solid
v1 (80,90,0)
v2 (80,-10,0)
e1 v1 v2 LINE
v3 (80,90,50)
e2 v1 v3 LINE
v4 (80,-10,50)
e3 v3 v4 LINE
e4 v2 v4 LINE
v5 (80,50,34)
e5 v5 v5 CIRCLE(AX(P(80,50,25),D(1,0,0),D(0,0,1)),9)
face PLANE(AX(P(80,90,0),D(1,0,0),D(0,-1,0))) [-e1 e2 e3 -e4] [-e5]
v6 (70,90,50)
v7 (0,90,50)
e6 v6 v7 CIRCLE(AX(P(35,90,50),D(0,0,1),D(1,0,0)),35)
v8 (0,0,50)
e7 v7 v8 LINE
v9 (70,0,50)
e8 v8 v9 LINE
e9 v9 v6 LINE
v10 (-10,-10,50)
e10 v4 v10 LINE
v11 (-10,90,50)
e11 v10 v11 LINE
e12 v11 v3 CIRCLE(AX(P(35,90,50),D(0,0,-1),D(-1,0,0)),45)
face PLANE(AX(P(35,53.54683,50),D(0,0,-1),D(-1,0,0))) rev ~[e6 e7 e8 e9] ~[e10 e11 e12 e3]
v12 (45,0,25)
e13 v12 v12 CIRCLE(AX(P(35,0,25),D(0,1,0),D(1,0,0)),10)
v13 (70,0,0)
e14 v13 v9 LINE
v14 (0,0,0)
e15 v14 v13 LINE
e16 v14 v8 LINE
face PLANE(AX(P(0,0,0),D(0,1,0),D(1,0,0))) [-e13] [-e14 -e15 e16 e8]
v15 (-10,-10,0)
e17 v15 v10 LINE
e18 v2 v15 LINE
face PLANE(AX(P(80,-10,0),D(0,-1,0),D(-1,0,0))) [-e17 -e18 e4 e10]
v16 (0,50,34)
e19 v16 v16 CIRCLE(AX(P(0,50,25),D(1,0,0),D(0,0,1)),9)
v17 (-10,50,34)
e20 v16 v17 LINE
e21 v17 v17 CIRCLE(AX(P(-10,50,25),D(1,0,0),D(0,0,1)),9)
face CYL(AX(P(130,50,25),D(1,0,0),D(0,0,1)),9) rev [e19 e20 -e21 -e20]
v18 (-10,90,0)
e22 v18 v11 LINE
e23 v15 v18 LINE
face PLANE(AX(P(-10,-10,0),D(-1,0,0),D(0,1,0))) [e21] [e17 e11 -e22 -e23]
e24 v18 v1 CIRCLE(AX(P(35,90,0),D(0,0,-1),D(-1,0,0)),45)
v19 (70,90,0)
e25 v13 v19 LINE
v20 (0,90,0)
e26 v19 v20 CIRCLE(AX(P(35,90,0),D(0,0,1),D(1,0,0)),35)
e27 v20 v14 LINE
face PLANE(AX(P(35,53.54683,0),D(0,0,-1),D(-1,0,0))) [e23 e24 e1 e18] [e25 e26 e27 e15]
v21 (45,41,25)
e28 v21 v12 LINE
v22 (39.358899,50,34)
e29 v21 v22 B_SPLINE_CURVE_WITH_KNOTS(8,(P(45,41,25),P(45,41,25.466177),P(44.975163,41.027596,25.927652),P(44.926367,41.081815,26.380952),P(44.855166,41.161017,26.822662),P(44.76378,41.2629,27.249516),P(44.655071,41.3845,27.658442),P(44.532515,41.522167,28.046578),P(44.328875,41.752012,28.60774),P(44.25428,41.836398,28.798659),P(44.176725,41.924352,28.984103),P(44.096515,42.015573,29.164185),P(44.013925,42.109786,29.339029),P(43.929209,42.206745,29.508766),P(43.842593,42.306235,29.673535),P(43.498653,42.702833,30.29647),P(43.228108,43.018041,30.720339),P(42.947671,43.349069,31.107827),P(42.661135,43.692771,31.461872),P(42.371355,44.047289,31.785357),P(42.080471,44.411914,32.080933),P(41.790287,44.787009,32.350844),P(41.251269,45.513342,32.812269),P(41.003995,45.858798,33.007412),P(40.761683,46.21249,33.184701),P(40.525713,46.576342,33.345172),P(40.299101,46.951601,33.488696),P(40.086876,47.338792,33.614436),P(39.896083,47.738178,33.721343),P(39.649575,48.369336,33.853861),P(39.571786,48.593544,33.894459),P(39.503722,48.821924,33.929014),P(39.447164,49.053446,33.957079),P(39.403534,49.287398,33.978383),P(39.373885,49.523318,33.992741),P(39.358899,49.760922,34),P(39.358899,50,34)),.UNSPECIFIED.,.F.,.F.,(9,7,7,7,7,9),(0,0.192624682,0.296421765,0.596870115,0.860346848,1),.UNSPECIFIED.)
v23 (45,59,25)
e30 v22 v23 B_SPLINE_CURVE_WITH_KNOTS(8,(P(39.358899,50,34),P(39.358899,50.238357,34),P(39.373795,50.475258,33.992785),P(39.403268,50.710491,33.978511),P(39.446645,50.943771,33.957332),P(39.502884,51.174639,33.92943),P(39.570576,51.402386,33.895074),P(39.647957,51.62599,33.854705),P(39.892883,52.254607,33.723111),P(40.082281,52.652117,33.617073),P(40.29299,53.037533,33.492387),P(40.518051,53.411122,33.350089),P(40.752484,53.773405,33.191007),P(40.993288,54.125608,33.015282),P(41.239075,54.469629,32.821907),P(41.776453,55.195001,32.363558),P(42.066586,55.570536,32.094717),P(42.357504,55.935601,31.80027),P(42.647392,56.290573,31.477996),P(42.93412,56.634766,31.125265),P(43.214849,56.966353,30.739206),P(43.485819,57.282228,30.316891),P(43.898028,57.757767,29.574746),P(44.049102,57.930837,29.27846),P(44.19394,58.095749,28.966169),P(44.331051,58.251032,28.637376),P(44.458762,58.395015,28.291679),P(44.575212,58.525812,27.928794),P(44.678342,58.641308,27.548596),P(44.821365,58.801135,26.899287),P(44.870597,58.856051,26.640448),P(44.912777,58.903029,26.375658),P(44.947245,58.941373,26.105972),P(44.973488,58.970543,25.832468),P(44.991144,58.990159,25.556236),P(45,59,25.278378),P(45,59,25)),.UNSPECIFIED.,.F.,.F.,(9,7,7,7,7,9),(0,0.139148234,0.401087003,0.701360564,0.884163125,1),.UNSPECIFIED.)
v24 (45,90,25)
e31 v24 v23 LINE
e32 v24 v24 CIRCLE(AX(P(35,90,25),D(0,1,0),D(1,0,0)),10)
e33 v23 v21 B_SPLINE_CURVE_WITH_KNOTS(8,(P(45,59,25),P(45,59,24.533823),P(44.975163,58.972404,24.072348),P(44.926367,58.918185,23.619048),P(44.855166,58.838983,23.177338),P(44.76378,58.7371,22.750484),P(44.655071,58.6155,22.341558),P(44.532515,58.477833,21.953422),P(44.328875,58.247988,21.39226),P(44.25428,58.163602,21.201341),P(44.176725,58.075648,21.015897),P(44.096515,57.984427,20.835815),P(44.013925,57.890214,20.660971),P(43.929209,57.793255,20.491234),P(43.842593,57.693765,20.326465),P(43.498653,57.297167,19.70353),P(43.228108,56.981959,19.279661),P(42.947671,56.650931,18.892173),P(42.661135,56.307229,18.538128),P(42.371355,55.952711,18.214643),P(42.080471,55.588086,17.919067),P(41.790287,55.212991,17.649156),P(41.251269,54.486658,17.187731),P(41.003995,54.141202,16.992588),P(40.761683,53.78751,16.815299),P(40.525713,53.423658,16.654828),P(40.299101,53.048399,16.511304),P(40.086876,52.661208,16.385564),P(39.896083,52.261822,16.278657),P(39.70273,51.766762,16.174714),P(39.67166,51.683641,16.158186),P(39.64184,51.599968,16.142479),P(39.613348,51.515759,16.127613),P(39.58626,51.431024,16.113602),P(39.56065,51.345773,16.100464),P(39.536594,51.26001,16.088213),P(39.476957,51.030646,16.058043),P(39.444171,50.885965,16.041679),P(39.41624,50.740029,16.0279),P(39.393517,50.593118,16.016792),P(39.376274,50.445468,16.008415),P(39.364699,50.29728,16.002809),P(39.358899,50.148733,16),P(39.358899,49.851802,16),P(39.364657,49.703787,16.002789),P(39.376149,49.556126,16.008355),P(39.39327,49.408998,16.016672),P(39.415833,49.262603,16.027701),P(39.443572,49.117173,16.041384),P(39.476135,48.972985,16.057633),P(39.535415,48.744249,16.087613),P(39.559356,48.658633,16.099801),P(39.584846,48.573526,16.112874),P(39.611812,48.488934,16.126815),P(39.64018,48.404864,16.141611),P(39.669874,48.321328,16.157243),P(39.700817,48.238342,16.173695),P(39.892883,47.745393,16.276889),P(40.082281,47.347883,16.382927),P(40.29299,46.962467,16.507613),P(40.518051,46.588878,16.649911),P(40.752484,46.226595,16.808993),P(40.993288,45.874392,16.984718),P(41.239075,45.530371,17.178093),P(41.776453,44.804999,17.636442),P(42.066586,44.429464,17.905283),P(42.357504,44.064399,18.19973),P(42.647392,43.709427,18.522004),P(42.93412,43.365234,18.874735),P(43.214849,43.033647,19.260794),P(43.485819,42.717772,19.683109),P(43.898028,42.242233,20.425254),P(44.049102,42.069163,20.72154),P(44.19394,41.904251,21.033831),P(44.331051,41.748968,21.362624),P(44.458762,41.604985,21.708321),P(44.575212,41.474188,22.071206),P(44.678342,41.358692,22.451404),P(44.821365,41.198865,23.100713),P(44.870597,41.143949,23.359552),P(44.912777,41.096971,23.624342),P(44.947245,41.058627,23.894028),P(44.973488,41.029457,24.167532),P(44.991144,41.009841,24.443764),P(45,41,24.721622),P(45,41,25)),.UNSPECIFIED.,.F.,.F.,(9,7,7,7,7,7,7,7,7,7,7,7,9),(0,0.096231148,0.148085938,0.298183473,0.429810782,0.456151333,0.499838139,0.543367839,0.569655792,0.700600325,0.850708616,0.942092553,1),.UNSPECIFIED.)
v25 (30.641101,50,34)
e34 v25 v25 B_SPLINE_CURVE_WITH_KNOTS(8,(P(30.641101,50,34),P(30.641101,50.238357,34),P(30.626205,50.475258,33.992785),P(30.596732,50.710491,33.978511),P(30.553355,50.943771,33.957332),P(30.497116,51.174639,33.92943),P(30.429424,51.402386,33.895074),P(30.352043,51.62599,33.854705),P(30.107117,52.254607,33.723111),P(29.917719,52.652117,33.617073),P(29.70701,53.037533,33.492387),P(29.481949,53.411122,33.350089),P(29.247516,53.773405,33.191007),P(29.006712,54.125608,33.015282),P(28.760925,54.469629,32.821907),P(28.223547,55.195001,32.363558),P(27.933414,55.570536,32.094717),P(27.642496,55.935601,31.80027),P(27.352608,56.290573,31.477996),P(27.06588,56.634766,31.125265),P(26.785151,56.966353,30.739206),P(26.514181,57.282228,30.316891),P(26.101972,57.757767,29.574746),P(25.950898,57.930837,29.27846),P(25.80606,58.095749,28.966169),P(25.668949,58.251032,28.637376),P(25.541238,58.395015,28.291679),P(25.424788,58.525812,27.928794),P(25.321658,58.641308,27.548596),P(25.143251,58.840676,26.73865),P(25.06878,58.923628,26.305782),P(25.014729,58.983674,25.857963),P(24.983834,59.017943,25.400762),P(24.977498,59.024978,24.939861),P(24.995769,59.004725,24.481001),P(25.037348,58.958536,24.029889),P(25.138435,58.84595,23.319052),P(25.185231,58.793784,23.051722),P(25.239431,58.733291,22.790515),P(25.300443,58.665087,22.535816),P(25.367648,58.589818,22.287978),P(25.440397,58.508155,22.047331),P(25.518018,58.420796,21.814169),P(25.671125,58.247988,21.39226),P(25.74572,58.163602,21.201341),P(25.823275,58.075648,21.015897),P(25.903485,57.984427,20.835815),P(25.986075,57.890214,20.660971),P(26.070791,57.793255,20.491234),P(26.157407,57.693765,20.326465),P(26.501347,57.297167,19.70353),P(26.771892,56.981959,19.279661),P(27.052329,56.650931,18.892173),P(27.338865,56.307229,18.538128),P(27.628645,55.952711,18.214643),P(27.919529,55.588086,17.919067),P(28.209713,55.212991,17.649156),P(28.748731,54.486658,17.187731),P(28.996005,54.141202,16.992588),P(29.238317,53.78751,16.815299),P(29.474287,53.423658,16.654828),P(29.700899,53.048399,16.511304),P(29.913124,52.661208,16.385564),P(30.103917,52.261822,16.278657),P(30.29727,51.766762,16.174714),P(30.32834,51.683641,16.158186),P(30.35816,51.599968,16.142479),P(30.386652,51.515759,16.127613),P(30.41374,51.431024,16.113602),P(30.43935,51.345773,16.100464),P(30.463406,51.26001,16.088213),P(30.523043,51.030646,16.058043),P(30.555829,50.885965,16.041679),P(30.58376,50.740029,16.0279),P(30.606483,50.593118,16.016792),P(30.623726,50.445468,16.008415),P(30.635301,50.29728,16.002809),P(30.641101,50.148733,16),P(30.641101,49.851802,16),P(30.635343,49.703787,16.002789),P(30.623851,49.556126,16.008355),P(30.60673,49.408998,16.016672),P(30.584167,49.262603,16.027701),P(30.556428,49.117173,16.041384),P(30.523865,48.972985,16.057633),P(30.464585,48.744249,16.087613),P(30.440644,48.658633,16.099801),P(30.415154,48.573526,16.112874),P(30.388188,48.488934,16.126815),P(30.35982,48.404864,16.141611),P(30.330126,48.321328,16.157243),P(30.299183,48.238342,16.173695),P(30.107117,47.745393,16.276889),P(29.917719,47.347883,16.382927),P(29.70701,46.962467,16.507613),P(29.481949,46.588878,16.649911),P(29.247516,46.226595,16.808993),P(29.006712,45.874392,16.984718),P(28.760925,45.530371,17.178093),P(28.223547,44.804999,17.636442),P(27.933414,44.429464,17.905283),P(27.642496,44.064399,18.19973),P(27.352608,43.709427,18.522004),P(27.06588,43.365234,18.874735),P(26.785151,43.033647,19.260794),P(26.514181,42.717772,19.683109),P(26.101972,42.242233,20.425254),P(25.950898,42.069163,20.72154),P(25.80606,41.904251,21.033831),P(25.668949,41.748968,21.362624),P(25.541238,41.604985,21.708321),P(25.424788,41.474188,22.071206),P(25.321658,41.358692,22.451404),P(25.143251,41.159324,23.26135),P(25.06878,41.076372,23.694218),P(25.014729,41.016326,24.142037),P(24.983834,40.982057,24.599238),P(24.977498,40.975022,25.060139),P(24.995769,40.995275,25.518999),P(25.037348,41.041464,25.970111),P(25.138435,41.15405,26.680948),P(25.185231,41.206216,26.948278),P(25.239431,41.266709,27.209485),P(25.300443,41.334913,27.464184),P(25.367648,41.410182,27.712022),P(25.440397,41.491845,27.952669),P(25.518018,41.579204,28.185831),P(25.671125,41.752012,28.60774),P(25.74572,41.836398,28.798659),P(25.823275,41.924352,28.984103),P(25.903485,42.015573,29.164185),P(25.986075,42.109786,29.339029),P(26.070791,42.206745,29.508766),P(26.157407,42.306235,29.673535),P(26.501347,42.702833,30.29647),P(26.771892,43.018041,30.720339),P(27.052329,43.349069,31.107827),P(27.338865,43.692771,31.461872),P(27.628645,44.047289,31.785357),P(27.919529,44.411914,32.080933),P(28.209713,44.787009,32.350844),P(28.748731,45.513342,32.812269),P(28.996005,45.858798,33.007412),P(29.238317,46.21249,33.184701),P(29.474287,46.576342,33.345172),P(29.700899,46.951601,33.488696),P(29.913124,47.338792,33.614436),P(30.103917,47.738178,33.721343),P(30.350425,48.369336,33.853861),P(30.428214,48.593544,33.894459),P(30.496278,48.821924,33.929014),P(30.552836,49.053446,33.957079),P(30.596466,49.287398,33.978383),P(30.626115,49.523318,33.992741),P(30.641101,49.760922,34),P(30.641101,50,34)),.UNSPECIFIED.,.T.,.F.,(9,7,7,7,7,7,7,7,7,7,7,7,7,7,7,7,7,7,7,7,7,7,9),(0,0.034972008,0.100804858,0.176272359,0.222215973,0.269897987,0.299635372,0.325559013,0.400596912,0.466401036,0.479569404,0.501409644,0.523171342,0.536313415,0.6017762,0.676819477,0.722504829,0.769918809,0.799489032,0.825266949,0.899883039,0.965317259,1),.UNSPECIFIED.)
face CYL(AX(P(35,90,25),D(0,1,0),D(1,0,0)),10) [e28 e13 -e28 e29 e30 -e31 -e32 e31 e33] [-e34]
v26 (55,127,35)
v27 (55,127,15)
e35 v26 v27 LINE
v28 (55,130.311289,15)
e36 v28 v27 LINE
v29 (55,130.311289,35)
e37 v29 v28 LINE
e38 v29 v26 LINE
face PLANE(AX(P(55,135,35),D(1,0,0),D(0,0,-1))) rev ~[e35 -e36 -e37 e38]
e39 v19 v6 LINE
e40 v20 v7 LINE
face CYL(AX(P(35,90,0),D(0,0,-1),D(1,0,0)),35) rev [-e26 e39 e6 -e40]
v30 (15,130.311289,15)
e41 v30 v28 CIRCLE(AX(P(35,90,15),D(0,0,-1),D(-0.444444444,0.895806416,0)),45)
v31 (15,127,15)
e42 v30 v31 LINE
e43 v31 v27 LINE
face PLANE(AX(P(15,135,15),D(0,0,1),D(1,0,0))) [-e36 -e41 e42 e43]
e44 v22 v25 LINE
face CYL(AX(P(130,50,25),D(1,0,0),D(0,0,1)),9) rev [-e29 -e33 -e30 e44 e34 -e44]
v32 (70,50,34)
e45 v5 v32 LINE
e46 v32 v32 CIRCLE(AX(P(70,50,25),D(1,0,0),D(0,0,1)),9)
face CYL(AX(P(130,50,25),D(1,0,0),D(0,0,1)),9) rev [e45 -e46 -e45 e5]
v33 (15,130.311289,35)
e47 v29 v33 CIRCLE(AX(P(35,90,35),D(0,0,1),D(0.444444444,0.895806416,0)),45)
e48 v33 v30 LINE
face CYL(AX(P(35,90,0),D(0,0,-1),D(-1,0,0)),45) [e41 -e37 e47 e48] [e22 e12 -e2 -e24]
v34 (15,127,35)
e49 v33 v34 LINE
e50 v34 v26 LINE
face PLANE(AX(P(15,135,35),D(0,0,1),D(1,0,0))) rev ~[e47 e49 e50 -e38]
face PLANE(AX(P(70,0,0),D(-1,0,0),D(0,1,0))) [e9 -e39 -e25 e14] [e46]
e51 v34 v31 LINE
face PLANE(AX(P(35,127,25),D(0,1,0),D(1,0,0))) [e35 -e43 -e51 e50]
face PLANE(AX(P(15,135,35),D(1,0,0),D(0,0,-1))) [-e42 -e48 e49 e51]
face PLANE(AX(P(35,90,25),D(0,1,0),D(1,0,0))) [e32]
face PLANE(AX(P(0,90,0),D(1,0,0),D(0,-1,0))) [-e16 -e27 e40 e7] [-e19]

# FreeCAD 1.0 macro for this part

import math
import FreeCAD as App
import Part
import Sketcher
from FreeCAD import Vector
Q = App.Units.Quantity


def add_polygon(sketch, points):
    """Adds a closed chain of lines whose ends are joined by coincident constraints."""
    first, n = sketch.GeometryCount, len(points)
    for a, b in zip(points, points[1:] + points[:1]):
        sketch.addGeometry(Part.LineSegment(App.Vector(*a, 0), App.Vector(*b, 0)), False)
    for i in range(n):
        sketch.addConstraint(Sketcher.Constraint("Coincident", first + i, 2, first + (i + 1) % n, 1))

doc = App.newDocument("Part")
body = doc.addObject("PartDesign::Body", "Body")

# Sketch on XY plane
sketch1 = doc.addObject("Sketcher::SketchObject", "Sketch")
body.addObject(sketch1)
sketch1.AttachmentSupport = (doc.XY_Plane, [""])
sketch1.MapMode = "FlatFace"
sketch1.addGeometry([
    Part.LineSegment(Vector(80, -10, 0), Vector(80, 90, 0)),  # 0
    Part.ArcOfCircle(Part.Circle(Vector(35, 90, 0), Vector(0, 0, 1), 45), math.radians(0), math.radians(180)),  # 1
    Part.LineSegment(Vector(-10, 90, 0), Vector(-10, -10, 0)),  # 2
    Part.LineSegment(Vector(-10, -10, 0), Vector(80, -10, 0)),  # 3
    Part.ArcOfCircle(Part.Circle(Vector(35, 90, 0), Vector(0, 0, 1), 35), math.radians(0), math.radians(180)),  # 4
    Part.LineSegment(Vector(70, 90, 0), Vector(70, 0, 0)),  # 5
    Part.LineSegment(Vector(70, 0, 0), Vector(0, 0, 0)),  # 6
    Part.LineSegment(Vector(0, 0, 0), Vector(0, 90, 0)),  # 7
], False)
sketch1.addConstraint([
    Sketcher.Constraint("Tangent", 0, 2, 1, 1),
    Sketcher.Constraint("Tangent", 1, 2, 2, 1),
    Sketcher.Constraint("Coincident", 2, 2, 3, 1),
    Sketcher.Constraint("Coincident", 3, 2, 0, 1),
    Sketcher.Constraint("Tangent", 4, 1, 5, 1),
    Sketcher.Constraint("Coincident", 5, 2, 6, 1),
    Sketcher.Constraint("Coincident", 6, 2, 7, 1),
    Sketcher.Constraint("Tangent", 7, 2, 4, 2),
    Sketcher.Constraint("Vertical", 0),
    Sketcher.Constraint("Vertical", 2),
    Sketcher.Constraint("Horizontal", 3),
    Sketcher.Constraint("Vertical", 5),
    Sketcher.Constraint("Horizontal", 6),
    Sketcher.Constraint("Vertical", 7),
    Sketcher.Constraint("Coincident", 6, 2, -1, 1),
    Sketcher.Constraint("Coincident", 4, 3, 1, 3),
    Sketcher.Constraint("Equal", 3, 5),
    Sketcher.Constraint("Radius", 1, Q("45 mm")),
    Sketcher.Constraint("Radius", 4, Q("35 mm")),
    Sketcher.Constraint("DistanceY", 0, 1, 0, 2, Q("100 mm")),
])
pad1 = doc.addObject("PartDesign::Pad", "Pad")
body.addObject(pad1)
pad1.Profile = sketch1
pad1.Length = 50

# Sketch on XZ plane
sketch2 = doc.addObject("Sketcher::SketchObject", "Sketch001")
body.addObject(sketch2)
sketch2.AttachmentSupport = (doc.XZ_Plane, [""])
sketch2.MapMode = "FlatFace"
sketch2.AttachmentOffset = App.Placement(Vector(0, 0, -135), App.Rotation())
add_polygon(sketch2, [(15, 15), (15, 35), (55, 35), (55, 15)])  # lines 0-3
sketch2.addConstraint([
    Sketcher.Constraint("Vertical", 0),
    Sketcher.Constraint("Horizontal", 1),
    Sketcher.Constraint("Vertical", 2),
    Sketcher.Constraint("Horizontal", 3),
    Sketcher.Constraint("DistanceX", 1, 1, 1, 2, Q("40 mm")),
    Sketcher.Constraint("DistanceY", 0, 1, 0, 2, Q("20 mm")),
    Sketcher.Constraint("DistanceX", -1, 1, 0, 2, Q("15 mm")),
    Sketcher.Constraint("DistanceY", -1, 1, 0, 2, Q("35 mm")),
])
pocket1 = doc.addObject("PartDesign::Pocket", "Pocket")
body.addObject(pocket1)
pocket1.Profile = sketch2
pocket1.Length = 8
pocket1.Reversed = True

# Sketch on XZ plane
sketch3 = doc.addObject("Sketcher::SketchObject", "Sketch002")
body.addObject(sketch3)
sketch3.AttachmentSupport = (doc.XZ_Plane, [""])
sketch3.MapMode = "FlatFace"
sketch3.AttachmentOffset = App.Placement(Vector(0, 0, -90), App.Rotation())
sketch3.addGeometry(Part.Circle(Vector(35, 25, 0), Vector(0, 0, 1), 10), False)
sketch3.addConstraint([
    Sketcher.Constraint("Diameter", 0, Q("20 mm")),
    Sketcher.Constraint("DistanceX", -1, 1, 0, 3, Q("35 mm")),
    Sketcher.Constraint("DistanceY", -1, 1, 0, 3, Q("25 mm")),
])
pad2 = doc.addObject("PartDesign::Pad", "Pad001")
body.addObject(pad2)
pad2.Profile = sketch3
pad2.Type = "UpToFirst"

# Sketch on YZ plane
sketch4 = doc.addObject("Sketcher::SketchObject", "Sketch003")
body.addObject(sketch4)
sketch4.AttachmentSupport = (doc.YZ_Plane, [""])
sketch4.MapMode = "FlatFace"
sketch4.AttachmentOffset = App.Placement(Vector(0, 0, 130), App.Rotation())
sketch4.addGeometry(Part.Circle(Vector(50, 25, 0), Vector(0, 0, 1), 9), False)
sketch4.addConstraint([
    Sketcher.Constraint("Diameter", 0, Q("18 mm")),
    Sketcher.Constraint("DistanceX", -1, 1, 0, 3, Q("50 mm")),
    Sketcher.Constraint("DistanceY", -1, 1, 0, 3, Q("25 mm")),
])
pocket2 = doc.addObject("PartDesign::Pocket", "Pocket001")
body.addObject(pocket2)
pocket2.Profile = sketch4
pocket2.Type = "ThroughAll"
pocket2.Midplane = True

doc.recompute()
